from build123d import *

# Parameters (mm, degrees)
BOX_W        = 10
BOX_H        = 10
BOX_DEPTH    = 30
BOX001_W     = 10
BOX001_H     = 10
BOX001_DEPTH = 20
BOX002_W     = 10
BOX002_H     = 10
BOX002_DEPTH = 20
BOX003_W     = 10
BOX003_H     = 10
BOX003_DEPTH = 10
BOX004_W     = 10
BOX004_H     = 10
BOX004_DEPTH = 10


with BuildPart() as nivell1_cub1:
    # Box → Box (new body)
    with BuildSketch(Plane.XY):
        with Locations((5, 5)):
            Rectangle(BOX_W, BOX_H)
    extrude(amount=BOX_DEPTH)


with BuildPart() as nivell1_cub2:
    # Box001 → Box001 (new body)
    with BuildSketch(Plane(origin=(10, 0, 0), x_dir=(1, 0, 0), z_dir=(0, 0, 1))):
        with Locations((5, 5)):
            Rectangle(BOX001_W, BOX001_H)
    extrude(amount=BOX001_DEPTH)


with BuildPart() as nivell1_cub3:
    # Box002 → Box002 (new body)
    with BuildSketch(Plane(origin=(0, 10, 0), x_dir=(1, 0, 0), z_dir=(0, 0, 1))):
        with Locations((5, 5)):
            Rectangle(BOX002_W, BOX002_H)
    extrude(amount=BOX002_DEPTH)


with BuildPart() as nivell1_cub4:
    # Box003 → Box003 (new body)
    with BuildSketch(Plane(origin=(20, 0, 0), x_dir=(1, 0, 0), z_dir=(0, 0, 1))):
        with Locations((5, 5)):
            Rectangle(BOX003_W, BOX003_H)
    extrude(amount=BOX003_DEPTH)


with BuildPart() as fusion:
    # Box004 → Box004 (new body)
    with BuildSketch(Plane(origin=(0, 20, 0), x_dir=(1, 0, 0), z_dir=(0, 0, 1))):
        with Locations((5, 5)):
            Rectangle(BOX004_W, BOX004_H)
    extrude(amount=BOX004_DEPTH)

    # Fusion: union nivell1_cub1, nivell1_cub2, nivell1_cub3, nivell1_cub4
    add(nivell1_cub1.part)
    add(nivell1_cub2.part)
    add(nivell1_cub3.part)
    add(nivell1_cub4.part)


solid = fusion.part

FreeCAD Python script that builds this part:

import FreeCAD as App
import Part
import Sketcher
Q = App.Units.Quantity


def add_polygon(sketch, points):
    """Adds a closed chain of lines whose ends are joined by coincident constraints."""
    first, n = sketch.GeometryCount, len(points)
    for a, b in zip(points, points[1:] + points[:1]):
        sketch.addGeometry(Part.LineSegment(App.Vector(*a, 0), App.Vector(*b, 0)), False)
    for i in range(n):
        sketch.addConstraint(Sketcher.Constraint("Coincident", first + i, 2, first + (i + 1) % n, 1))

doc = App.newDocument("Part")
body = doc.addObject("PartDesign::Body", "Body")

sketch1 = body.newObject("Sketcher::SketchObject", "Sketch")
sketch1.AttachmentSupport = (doc.getObject("XY_Plane"), [""])
sketch1.MapMode = "FlatFace"
add_polygon(sketch1, [(0, 10), (0, 0), (10, 0), (10, 10)])
sketch1.addConstraint(Sketcher.Constraint("Vertical", 0))
sketch1.addConstraint(Sketcher.Constraint("Horizontal", 1))
sketch1.addConstraint(Sketcher.Constraint("Vertical", 2))
sketch1.addConstraint(Sketcher.Constraint("Horizontal", 3))
sketch1.addConstraint(Sketcher.Constraint("Coincident", 0, 2, -1, 1))
sketch1.addConstraint(Sketcher.Constraint("Equal", 3, 0))
sketch1.addConstraint(Sketcher.Constraint("DistanceX", 1, 1, 1, 2, Q("10 mm")))
pad1 = body.newObject("PartDesign::Pad", "Pad")
pad1.Profile = sketch1
pad1.Length = 30
body2 = doc.addObject("PartDesign::Body", "Body001")

sketch2 = body2.newObject("Sketcher::SketchObject", "Sketch001")
sketch2.AttachmentSupport = (doc.getObject("XY_Plane001"), [""])
sketch2.MapMode = "FlatFace"
add_polygon(sketch2, [(10, 10), (10, 0), (20, 0), (20, 10)])
sketch2.addConstraint(Sketcher.Constraint("Vertical", 0))
sketch2.addConstraint(Sketcher.Constraint("Horizontal", 1))
sketch2.addConstraint(Sketcher.Constraint("Vertical", 2))
sketch2.addConstraint(Sketcher.Constraint("Horizontal", 3))
sketch2.addConstraint(Sketcher.Constraint("PointOnObject", 0, 2, -1))
sketch2.addConstraint(Sketcher.Constraint("Equal", 3, 0))
sketch2.addConstraint(Sketcher.Constraint("DistanceX", 1, 1, 1, 2, Q("10 mm")))
sketch2.addConstraint(Sketcher.Constraint("DistanceX", -1, 1, 0, 2, Q("10 mm")))
pad2 = body2.newObject("PartDesign::Pad", "Pad001")
pad2.Profile = sketch2
pad2.Length = 20
body3 = doc.addObject("PartDesign::Body", "Body002")

sketch3 = body3.newObject("Sketcher::SketchObject", "Sketch002")
sketch3.AttachmentSupport = (doc.getObject("XY_Plane002"), [""])
sketch3.MapMode = "FlatFace"
add_polygon(sketch3, [(0, 20), (0, 10), (10, 10), (10, 20)])
sketch3.addConstraint(Sketcher.Constraint("Vertical", 0))
sketch3.addConstraint(Sketcher.Constraint("Horizontal", 1))
sketch3.addConstraint(Sketcher.Constraint("Vertical", 2))
sketch3.addConstraint(Sketcher.Constraint("Horizontal", 3))
sketch3.addConstraint(Sketcher.Constraint("PointOnObject", 0, 2, -2))
sketch3.addConstraint(Sketcher.Constraint("Equal", 3, 0))
sketch3.addConstraint(Sketcher.Constraint("DistanceX", 1, 1, 1, 2, Q("10 mm")))
sketch3.addConstraint(Sketcher.Constraint("DistanceY", -1, 1, 0, 2, Q("10 mm")))
pad3 = body3.newObject("PartDesign::Pad", "Pad002")
pad3.Profile = sketch3
pad3.Length = 20
body4 = doc.addObject("PartDesign::Body", "Body003")

sketch4 = body4.newObject("Sketcher::SketchObject", "Sketch003")
sketch4.AttachmentSupport = (doc.getObject("XY_Plane003"), [""])
sketch4.MapMode = "FlatFace"
add_polygon(sketch4, [(20, 10), (20, 0), (30, 0), (30, 10)])
sketch4.addConstraint(Sketcher.Constraint("Vertical", 0))
sketch4.addConstraint(Sketcher.Constraint("Horizontal", 1))
sketch4.addConstraint(Sketcher.Constraint("Vertical", 2))
sketch4.addConstraint(Sketcher.Constraint("Horizontal", 3))
sketch4.addConstraint(Sketcher.Constraint("PointOnObject", 0, 2, -1))
sketch4.addConstraint(Sketcher.Constraint("Equal", 3, 0))
sketch4.addConstraint(Sketcher.Constraint("DistanceX", 1, 1, 1, 2, Q("10 mm")))
sketch4.addConstraint(Sketcher.Constraint("DistanceX", -1, 1, 0, 2, Q("20 mm")))
pad4 = body4.newObject("PartDesign::Pad", "Pad003")
pad4.Profile = sketch4
pad4.Length = 10
body5 = doc.addObject("PartDesign::Body", "Body004")
body5.AllowCompound = True

sketch5 = body5.newObject("Sketcher::SketchObject", "Sketch004")
sketch5.AttachmentSupport = (doc.getObject("XY_Plane004"), [""])
sketch5.MapMode = "FlatFace"
add_polygon(sketch5, [(0, 30), (0, 20), (10, 20), (10, 30)])
sketch5.addConstraint(Sketcher.Constraint("Vertical", 0))
sketch5.addConstraint(Sketcher.Constraint("Horizontal", 1))
sketch5.addConstraint(Sketcher.Constraint("Vertical", 2))
sketch5.addConstraint(Sketcher.Constraint("Horizontal", 3))
sketch5.addConstraint(Sketcher.Constraint("PointOnObject", 0, 2, -2))
sketch5.addConstraint(Sketcher.Constraint("Equal", 3, 0))
sketch5.addConstraint(Sketcher.Constraint("DistanceX", 1, 1, 1, 2, Q("10 mm")))
sketch5.addConstraint(Sketcher.Constraint("DistanceY", -1, 1, 0, 2, Q("20 mm")))
pad5 = body5.newObject("PartDesign::Pad", "Pad004")
pad5.Profile = sketch5
pad5.Length = 10
doc.recompute()

boolean = body5.newObject("PartDesign::Boolean", "Boolean")
boolean.Type = "Fuse"
boolean.addObjects([body])
doc.recompute()

boolean2 = body5.newObject("PartDesign::Boolean", "Boolean001")
boolean2.Type = "Fuse"
boolean2.addObjects([body2])
doc.recompute()

boolean3 = body5.newObject("PartDesign::Boolean", "Boolean002")
boolean3.Type = "Fuse"
boolean3.addObjects([body3])
doc.recompute()

boolean4 = body5.newObject("PartDesign::Boolean", "Boolean003")
boolean4.Type = "Fuse"
boolean4.addObjects([body4])

doc.recompute()
